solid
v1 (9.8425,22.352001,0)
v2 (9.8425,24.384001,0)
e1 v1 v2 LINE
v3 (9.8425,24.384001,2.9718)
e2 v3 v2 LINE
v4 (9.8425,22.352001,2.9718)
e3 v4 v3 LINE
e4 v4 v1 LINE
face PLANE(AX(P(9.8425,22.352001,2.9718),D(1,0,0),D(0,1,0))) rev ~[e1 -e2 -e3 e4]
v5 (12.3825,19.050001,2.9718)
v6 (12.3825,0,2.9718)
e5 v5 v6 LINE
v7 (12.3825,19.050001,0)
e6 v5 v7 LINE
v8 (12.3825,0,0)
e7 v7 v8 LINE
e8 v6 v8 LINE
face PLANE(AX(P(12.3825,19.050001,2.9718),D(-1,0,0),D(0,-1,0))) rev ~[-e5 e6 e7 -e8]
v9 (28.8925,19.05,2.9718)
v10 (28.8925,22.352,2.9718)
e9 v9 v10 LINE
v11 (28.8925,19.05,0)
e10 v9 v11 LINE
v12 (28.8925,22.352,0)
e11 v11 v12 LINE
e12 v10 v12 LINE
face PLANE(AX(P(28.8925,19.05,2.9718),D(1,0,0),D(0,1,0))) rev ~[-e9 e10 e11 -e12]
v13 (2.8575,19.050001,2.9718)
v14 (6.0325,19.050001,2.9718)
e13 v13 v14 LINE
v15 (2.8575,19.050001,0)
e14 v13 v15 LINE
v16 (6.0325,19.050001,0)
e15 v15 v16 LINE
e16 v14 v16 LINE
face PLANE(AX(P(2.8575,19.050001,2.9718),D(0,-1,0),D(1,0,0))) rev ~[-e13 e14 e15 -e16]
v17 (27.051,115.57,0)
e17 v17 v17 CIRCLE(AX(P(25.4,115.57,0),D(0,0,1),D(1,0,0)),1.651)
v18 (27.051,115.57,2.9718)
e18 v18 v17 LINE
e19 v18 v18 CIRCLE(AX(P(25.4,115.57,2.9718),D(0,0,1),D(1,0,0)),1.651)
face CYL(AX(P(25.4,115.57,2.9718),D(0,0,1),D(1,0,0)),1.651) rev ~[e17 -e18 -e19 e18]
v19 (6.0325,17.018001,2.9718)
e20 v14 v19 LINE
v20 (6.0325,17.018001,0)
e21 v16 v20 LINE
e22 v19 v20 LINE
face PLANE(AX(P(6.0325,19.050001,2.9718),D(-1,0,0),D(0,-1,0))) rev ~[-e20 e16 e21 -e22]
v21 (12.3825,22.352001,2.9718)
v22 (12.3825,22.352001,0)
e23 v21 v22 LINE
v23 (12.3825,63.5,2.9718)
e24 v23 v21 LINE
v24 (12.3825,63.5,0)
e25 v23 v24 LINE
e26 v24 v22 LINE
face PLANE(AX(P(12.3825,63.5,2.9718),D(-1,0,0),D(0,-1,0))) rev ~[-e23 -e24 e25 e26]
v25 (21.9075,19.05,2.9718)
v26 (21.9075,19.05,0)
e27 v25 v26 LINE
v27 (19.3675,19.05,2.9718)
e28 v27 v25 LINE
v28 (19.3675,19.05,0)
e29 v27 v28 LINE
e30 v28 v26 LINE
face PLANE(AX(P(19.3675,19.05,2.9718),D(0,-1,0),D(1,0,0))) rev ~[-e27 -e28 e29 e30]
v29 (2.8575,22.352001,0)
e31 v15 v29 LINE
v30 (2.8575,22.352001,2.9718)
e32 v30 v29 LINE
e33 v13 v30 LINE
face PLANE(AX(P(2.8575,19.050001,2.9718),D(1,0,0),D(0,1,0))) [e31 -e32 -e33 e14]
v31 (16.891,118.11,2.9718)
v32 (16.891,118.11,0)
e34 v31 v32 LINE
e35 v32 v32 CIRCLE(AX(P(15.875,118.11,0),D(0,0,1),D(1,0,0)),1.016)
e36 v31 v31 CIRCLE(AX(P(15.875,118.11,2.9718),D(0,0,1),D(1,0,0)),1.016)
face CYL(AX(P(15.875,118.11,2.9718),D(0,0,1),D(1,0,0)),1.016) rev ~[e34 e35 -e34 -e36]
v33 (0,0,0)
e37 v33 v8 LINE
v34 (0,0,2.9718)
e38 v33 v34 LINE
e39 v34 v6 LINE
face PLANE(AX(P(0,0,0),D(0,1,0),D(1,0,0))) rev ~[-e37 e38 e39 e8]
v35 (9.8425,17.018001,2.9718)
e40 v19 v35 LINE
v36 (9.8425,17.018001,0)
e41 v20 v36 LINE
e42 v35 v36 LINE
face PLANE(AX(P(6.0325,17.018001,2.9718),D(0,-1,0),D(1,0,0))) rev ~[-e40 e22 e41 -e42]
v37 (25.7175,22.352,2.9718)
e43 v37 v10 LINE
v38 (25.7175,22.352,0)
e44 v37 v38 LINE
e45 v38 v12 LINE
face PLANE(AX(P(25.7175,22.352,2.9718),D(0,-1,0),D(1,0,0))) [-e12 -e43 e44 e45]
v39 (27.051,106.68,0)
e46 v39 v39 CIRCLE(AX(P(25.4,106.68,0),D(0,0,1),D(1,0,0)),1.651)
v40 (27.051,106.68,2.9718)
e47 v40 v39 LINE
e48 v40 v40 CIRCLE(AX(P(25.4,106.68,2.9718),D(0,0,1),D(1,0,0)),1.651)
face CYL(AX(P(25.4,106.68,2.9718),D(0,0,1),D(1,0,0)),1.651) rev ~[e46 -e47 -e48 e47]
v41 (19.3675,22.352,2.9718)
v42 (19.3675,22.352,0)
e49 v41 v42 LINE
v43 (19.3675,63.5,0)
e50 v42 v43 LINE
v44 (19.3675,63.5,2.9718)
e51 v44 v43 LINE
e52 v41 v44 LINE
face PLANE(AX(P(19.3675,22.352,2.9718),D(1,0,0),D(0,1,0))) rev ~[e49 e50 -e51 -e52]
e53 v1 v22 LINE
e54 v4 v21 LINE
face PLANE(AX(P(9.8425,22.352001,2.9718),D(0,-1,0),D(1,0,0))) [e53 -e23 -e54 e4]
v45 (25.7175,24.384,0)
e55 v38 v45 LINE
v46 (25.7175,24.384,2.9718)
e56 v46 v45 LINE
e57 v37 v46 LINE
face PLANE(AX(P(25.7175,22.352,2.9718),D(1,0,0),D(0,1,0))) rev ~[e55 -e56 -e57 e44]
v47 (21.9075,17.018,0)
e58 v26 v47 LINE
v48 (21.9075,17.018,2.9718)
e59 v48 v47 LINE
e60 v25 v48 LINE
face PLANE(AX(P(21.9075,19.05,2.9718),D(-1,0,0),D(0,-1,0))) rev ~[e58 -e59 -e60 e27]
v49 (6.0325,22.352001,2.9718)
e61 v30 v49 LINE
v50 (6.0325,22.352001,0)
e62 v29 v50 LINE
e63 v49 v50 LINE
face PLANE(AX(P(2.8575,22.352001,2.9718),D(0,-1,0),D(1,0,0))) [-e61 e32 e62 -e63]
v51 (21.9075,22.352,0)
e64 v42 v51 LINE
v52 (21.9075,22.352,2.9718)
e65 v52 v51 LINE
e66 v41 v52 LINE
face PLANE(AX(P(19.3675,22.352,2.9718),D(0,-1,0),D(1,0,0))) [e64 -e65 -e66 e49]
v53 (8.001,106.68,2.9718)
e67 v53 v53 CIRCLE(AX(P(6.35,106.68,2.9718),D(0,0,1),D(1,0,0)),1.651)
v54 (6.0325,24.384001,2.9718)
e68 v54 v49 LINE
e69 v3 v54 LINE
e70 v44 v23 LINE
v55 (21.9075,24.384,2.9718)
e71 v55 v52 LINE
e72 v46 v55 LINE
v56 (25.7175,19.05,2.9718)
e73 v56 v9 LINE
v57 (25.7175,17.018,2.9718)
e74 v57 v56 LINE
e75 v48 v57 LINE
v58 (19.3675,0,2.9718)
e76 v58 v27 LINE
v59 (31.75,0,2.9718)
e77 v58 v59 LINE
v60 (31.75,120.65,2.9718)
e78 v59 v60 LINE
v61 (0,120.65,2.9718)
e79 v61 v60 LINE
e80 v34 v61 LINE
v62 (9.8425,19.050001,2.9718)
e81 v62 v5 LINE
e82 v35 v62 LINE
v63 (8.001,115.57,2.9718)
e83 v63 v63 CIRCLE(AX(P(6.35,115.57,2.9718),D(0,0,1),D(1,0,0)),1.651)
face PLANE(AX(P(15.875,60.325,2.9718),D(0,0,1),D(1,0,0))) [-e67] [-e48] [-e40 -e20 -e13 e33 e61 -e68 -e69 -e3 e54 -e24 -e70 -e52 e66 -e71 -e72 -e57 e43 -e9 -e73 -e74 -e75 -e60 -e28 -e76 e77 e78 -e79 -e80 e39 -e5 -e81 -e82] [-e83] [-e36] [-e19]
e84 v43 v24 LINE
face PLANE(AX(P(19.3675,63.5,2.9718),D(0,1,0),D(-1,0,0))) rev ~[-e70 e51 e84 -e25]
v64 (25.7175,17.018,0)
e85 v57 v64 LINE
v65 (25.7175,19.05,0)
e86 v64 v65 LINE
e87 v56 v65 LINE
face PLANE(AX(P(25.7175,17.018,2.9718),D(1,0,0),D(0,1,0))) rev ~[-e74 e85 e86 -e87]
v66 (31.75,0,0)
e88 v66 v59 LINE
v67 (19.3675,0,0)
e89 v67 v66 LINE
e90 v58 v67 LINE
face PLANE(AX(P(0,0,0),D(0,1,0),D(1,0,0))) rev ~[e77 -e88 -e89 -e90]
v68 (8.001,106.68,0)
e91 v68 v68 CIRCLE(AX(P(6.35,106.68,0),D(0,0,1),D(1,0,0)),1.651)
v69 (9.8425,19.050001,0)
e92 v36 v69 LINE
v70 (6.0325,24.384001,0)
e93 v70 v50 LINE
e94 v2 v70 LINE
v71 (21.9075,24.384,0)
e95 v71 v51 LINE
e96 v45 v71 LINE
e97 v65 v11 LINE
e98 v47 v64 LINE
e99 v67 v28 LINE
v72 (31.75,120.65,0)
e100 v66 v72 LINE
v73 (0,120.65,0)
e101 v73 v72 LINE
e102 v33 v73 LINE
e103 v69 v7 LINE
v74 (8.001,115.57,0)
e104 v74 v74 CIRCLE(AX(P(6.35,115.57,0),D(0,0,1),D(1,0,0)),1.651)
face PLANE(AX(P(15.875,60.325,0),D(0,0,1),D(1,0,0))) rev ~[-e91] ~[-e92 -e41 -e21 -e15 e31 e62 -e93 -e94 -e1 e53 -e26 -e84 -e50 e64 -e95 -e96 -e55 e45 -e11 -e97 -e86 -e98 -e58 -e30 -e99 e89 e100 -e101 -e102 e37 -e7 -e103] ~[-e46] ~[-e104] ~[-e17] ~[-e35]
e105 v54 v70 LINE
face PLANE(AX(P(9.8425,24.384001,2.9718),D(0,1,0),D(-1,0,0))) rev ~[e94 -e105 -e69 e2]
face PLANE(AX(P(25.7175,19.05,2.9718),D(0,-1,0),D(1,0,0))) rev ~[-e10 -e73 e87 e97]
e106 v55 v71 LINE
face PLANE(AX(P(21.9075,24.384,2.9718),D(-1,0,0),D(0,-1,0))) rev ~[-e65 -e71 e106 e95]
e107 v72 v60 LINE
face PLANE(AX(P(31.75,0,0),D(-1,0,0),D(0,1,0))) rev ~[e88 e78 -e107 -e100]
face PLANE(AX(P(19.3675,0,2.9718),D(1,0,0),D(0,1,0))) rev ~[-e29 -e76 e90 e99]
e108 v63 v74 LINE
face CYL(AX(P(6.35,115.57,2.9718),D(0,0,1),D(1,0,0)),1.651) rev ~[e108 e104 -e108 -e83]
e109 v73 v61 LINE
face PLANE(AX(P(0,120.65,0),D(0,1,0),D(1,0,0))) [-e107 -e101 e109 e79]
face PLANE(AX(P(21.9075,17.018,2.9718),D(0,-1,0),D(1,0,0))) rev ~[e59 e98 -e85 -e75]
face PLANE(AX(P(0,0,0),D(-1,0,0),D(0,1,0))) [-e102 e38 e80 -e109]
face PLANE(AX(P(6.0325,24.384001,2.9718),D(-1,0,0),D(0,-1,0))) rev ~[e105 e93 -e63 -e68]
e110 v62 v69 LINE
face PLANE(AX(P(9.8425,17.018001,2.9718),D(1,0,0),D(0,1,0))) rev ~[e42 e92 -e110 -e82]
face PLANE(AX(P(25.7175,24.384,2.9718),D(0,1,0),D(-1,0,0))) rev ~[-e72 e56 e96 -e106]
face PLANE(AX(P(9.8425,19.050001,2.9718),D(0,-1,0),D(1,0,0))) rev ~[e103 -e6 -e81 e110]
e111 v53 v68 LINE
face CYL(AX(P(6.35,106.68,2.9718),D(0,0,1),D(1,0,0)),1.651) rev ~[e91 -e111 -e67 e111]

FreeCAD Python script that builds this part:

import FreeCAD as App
import Part
import Sketcher
Q = App.Units.Quantity


def add_polygon(sketch, points):
    """Adds a closed chain of lines whose ends are joined by coincident constraints."""
    first, n = sketch.GeometryCount, len(points)
    for a, b in zip(points, points[1:] + points[:1]):
        sketch.addGeometry(Part.LineSegment(App.Vector(*a, 0), App.Vector(*b, 0)), False)
    for i in range(n):
        sketch.addConstraint(Sketcher.Constraint("Coincident", first + i, 2, first + (i + 1) % n, 1))

doc = App.newDocument("Part")
body = doc.addObject("PartDesign::Body", "Body")

sketch1 = doc.addObject("Sketcher::SketchObject", "Sketch")
body.addObject(sketch1)
sketch1.AttachmentSupport = (doc.XY_Plane, [""])
sketch1.MapMode = "FlatFace"
add_polygon(sketch1, [(0, 121), (0, 0), (32, 0), (32, 121)])
sketch1.addConstraint(Sketcher.Constraint("Vertical", 0))
sketch1.addConstraint(Sketcher.Constraint("Horizontal", 1))
sketch1.addConstraint(Sketcher.Constraint("Vertical", 2))
sketch1.addConstraint(Sketcher.Constraint("Horizontal", 3))
sketch1.addConstraint(Sketcher.Constraint("Coincident", 0, 2, -1, 1))
sketch1.addConstraint(Sketcher.Constraint("DistanceX", 1, 1, 1, 2, Q("1.25 in")))
sketch1.addConstraint(Sketcher.Constraint("DistanceY", 0, 2, 0, 1, Q("4.75 in")))
pad1 = doc.addObject("PartDesign::Pad", "Pad")
body.addObject(pad1)
pad1.Profile = sketch1
pad1.Length = Q("0.117 in")

sketch2 = doc.addObject("Sketcher::SketchObject", "Sketch001")
body.addObject(sketch2)
sketch2.AttachmentSupport = (doc.XY_Plane, [""])
sketch2.MapMode = "FlatFace"
sketch2.AttachmentOffset = App.Placement(App.Vector(0, 0, 0.117 * 25.4), App.Rotation())
sketch2.addGeometry(Part.Circle(App.Vector(6.3, 115.6, 0), App.Vector(0, 0, 1), 1.7), False)
sketch2.addGeometry(Part.Circle(App.Vector(25.4, 115.6, 0), App.Vector(0, 0, 1), 1.7), False)
sketch2.addGeometry(Part.Circle(App.Vector(25.4, 106.7, 0), App.Vector(0, 0, 1), 1.7), False)
sketch2.addGeometry(Part.Circle(App.Vector(6.3, 106.7, 0), App.Vector(0, 0, 1), 1.7), False)
sketch2.addGeometry(Part.Circle(App.Vector(15.9, 118.1, 0), App.Vector(0, 0, 1), 1), False)
add_polygon(sketch2, [(12.4, 0), (19.4, 0), (19.4, 19.1), (21.9, 19.1), (21.9, 17), (25.7, 17), (25.7, 19.1), (28.9, 19.1), (28.9, 22.4), (25.7, 22.4), (25.7, 24.4), (21.9, 24.4), (21.9, 22.4), (19.4, 22.4), (19.4, 63.5), (12.4, 63.5), (12.4, 22.4), (9.8, 22.4), (9.8, 24.4), (6, 24.4), (6, 22.4), (2.9, 22.4), (2.9, 19.1), (6, 19.1), (6, 17), (9.8, 17), (9.8, 19.1), (12.4, 19.1)])
sketch2.addConstraint(Sketcher.Constraint("Horizontal", 5))
sketch2.addConstraint(Sketcher.Constraint("Vertical", 6))
sketch2.addConstraint(Sketcher.Constraint("Horizontal", 7))
sketch2.addConstraint(Sketcher.Constraint("Vertical", 8))
sketch2.addConstraint(Sketcher.Constraint("Horizontal", 9))
sketch2.addConstraint(Sketcher.Constraint("Vertical", 10))
sketch2.addConstraint(Sketcher.Constraint("Horizontal", 11))
sketch2.addConstraint(Sketcher.Constraint("Vertical", 12))
sketch2.addConstraint(Sketcher.Constraint("Horizontal", 13))
sketch2.addConstraint(Sketcher.Constraint("Vertical", 14))
sketch2.addConstraint(Sketcher.Constraint("Horizontal", 15))
sketch2.addConstraint(Sketcher.Constraint("Vertical", 16))
sketch2.addConstraint(Sketcher.Constraint("Horizontal", 17))
sketch2.addConstraint(Sketcher.Constraint("Vertical", 18))
sketch2.addConstraint(Sketcher.Constraint("Horizontal", 19))
sketch2.addConstraint(Sketcher.Constraint("Vertical", 20))
sketch2.addConstraint(Sketcher.Constraint("Horizontal", 21))
sketch2.addConstraint(Sketcher.Constraint("Vertical", 22))
sketch2.addConstraint(Sketcher.Constraint("Horizontal", 23))
sketch2.addConstraint(Sketcher.Constraint("Vertical", 24))
sketch2.addConstraint(Sketcher.Constraint("Horizontal", 25))
sketch2.addConstraint(Sketcher.Constraint("Vertical", 26))
sketch2.addConstraint(Sketcher.Constraint("Horizontal", 27))
sketch2.addConstraint(Sketcher.Constraint("Vertical", 28))
sketch2.addConstraint(Sketcher.Constraint("Horizontal", 29))
sketch2.addConstraint(Sketcher.Constraint("Vertical", 30))
sketch2.addConstraint(Sketcher.Constraint("Horizontal", 31))
sketch2.addConstraint(Sketcher.Constraint("Vertical", 32))
sketch2.addConstraint(Sketcher.Constraint("Equal", 0, 1))
sketch2.addConstraint(Sketcher.Constraint("Equal", 1, 2))
sketch2.addConstraint(Sketcher.Constraint("Equal", 2, 3))
sketch2.addConstraint(Sketcher.Constraint("PointOnObject", 5, 2, -1))
sketch2.addConstraint(Sketcher.Constraint("Horizontal", 0, 3, 1, 3))
sketch2.addConstraint(Sketcher.Constraint("Horizontal", 2, 3, 3, 3))
sketch2.addConstraint(Sketcher.Constraint("Horizontal", 7, 2, 10, 2))
sketch2.addConstraint(Sketcher.Constraint("Horizontal", 13, 2, 16, 2))
sketch2.addConstraint(Sketcher.Constraint("Horizontal", 17, 2, 20, 2))
sketch2.addConstraint(Sketcher.Constraint("Horizontal", 15, 2, 22, 2))
sketch2.addConstraint(Sketcher.Constraint("Horizontal", 21, 2, 24, 2))
sketch2.addConstraint(Sketcher.Constraint("Horizontal", 11, 2, 26, 2))
sketch2.addConstraint(Sketcher.Constraint("Horizontal", 9, 2, 28, 2))
sketch2.addConstraint(Sketcher.Constraint("Horizontal", 27, 2, 30, 2))
sketch2.addConstraint(Sketcher.Constraint("Vertical", 1, 3, 2, 3))
sketch2.addConstraint(Sketcher.Constraint("Vertical", 0, 3, 3, 3))
sketch2.addConstraint(Sketcher.Constraint("Vertical", 10, 2, 13, 2))
sketch2.addConstraint(Sketcher.Constraint("Vertical", 8, 2, 15, 2))
sketch2.addConstraint(Sketcher.Constraint("Vertical", 6, 2, 17, 2))
sketch2.addConstraint(Sketcher.Constraint("Vertical", 24, 2, 27, 2))
sketch2.addConstraint(Sketcher.Constraint("Vertical", 22, 2, 29, 2))
sketch2.addConstraint(Sketcher.Constraint("Vertical", 20, 2, 31, 2))
sketch2.addConstraint(Sketcher.Constraint("Equal", 17, 21))
sketch2.addConstraint(Sketcher.Constraint("Equal", 15, 23))
sketch2.addConstraint(Sketcher.Constraint("Equal", 13, 25))
sketch2.addConstraint(Sketcher.Constraint("Equal", 10, 14))
sketch2.addConstraint(Sketcher.Constraint("Diameter", 0, Q("0.13 in")))
sketch2.addConstraint(Sketcher.Constraint("Diameter", 4, Q("0.08 in")))
sketch2.addConstraint(Sketcher.Constraint("DistanceX", 7, 1, 7, 2, Q("0.1 in")))
sketch2.addConstraint(Sketcher.Constraint("DistanceX", -1, 1, 1, 3, Q("1 in")))
sketch2.addConstraint(Sketcher.Constraint("DistanceX", 9, 1, 9, 2, Q("0.15 in")))
sketch2.addConstraint(Sketcher.Constraint("DistanceY", 6, 1, 6, 2, Q("0.75 in")))
sketch2.addConstraint(Sketcher.Constraint("DistanceY", 8, 2, 8, 1, Q("0.08 in")))
sketch2.addConstraint(Sketcher.Constraint("DistanceY", 12, 1, 12, 2, Q("0.13 in")))
sketch2.addConstraint(Sketcher.Constraint("DistanceY", 18, 1, 18, 2, Q("1.62 in")))
sketch2.addConstraint(Sketcher.Constraint("DistanceY", -1, 1, 2, 3, Q("4.2 in")))
sketch2.addConstraint(Sketcher.Constraint("DistanceY", 1, 3, 4, 3, Q("0.1 in")))
sketch2.addConstraint(Sketcher.Constraint("DistanceY", 6, 2, 1, 3, Q("3.8 in")))
sketch2.addConstraint(Sketcher.Constraint("DistanceX", 5, 1, 5, 2, Q("0.275 in")))
sketch2.addConstraint(Sketcher.Constraint("DistanceX", 11, 1, 11, 2, Q("0.125 in")))
sketch2.addConstraint(Sketcher.Constraint("DistanceX", -1, 1, 0, 3, Q("0.25 in")))
sketch2.addConstraint(Sketcher.Constraint("DistanceX", -1, 1, 4, 3, Q("0.625 in")))
sketch2.addConstraint(Sketcher.Constraint("DistanceX", -1, 1, 5, 2, Q("0.7625 in")))
pocket1 = doc.addObject("PartDesign::Pocket", "Pocket")
body.addObject(pocket1)
pocket1.Profile = sketch2
pocket1.Length = Q("1 in")

doc.recompute()
